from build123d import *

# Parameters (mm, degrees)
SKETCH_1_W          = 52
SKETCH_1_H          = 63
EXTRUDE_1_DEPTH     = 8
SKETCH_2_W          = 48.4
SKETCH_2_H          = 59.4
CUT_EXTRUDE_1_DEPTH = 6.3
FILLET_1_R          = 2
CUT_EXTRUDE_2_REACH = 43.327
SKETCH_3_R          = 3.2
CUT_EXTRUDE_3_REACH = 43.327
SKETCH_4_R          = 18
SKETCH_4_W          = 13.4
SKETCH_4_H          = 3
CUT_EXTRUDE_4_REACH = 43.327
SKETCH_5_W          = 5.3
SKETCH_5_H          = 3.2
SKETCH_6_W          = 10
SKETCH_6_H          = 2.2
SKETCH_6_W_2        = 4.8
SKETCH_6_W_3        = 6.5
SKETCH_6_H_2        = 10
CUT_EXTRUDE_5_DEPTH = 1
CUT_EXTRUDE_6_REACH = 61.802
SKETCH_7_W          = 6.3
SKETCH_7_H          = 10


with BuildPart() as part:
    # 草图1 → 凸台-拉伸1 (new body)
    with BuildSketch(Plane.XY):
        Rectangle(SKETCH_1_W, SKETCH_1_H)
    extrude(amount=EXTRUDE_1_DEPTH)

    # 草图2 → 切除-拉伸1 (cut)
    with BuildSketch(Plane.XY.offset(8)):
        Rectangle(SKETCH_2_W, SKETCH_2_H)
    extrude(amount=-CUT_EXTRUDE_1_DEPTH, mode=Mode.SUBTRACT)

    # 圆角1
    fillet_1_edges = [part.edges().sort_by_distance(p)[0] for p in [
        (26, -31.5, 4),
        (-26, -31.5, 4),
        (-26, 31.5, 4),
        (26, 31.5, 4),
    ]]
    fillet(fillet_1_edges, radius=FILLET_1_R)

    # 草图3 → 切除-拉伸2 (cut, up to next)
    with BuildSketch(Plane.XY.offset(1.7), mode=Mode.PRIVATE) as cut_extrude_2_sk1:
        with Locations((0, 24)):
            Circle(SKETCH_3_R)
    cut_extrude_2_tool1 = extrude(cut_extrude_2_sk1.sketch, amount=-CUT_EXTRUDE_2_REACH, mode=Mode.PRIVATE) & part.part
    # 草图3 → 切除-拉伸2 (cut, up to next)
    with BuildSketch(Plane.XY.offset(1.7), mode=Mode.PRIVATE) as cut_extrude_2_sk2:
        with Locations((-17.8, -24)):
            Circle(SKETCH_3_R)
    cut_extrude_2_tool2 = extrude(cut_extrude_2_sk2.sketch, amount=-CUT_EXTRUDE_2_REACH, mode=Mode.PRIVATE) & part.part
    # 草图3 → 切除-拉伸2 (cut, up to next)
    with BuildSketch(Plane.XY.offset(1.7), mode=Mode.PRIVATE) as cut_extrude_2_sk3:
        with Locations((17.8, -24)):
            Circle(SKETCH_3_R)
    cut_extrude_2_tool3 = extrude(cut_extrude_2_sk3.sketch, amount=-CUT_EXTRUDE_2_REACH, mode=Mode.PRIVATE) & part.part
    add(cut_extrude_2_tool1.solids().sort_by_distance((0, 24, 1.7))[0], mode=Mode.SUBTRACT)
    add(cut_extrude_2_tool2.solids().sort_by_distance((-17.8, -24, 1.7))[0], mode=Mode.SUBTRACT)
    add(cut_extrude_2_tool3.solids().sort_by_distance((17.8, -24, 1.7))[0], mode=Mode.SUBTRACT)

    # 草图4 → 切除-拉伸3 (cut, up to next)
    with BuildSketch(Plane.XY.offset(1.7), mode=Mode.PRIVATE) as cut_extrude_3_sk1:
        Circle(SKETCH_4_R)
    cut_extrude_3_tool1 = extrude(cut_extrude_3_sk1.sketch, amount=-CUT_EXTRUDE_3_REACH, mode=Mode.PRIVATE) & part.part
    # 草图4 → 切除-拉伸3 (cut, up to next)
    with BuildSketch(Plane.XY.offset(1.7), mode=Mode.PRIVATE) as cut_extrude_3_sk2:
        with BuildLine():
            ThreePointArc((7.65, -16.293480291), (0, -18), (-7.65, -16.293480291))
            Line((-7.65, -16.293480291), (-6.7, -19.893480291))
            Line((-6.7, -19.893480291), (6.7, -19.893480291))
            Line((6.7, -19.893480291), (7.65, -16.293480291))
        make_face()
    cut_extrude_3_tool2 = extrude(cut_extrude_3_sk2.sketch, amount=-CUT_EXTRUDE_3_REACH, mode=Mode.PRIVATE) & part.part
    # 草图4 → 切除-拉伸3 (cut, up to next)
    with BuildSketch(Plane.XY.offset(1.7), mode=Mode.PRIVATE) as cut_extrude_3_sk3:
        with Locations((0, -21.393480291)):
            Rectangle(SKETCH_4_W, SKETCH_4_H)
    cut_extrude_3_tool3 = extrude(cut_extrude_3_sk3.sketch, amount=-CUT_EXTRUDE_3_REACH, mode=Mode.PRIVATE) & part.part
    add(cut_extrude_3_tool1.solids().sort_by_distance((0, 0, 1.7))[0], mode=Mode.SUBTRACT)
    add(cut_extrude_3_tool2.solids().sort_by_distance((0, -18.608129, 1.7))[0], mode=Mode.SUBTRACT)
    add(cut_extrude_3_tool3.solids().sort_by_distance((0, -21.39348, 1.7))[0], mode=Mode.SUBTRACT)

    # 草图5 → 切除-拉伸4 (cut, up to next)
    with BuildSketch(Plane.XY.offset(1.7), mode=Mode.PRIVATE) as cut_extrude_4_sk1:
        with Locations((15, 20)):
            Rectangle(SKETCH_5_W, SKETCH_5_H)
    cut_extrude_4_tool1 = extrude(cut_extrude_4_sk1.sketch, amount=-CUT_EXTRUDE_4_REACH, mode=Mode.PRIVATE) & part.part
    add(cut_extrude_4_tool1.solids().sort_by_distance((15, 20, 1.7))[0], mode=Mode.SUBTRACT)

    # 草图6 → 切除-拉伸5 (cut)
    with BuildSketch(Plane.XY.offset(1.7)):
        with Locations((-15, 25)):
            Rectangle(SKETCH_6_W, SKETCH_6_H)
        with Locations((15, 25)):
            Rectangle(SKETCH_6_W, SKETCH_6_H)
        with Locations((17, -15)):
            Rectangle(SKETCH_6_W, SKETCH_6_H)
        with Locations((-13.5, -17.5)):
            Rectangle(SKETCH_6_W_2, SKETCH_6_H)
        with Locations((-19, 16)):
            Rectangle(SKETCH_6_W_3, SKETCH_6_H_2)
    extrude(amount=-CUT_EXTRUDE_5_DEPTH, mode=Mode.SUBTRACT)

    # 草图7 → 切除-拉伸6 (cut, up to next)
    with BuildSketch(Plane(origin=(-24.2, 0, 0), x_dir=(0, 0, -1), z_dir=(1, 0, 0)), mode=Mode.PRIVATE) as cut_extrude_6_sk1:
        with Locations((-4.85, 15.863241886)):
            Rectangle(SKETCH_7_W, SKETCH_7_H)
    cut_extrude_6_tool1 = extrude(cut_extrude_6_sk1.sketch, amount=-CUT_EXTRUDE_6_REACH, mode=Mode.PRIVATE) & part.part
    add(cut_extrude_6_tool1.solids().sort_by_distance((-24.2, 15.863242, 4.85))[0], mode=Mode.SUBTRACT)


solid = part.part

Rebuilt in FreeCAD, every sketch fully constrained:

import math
import FreeCAD as App
import Part
import Sketcher
Q = App.Units.Quantity


def edges_at(feature, points):
    """Names of the edges that pass closest to the given points."""
    edges = feature.Shape.Edges
    near = lambda p: min(range(len(edges)), key=lambda i: edges[i].distToShape(Part.Vertex(*p))[0])
    return sorted({f"Edge{near(p) + 1}" for p in points})

doc = App.newDocument("Part")
body = doc.addObject("PartDesign::Body", "Body")

# Sketch on XY plane
sketch1 = body.newObject("Sketcher::SketchObject", "Sketch")
sketch1.AttachmentSupport = (doc.getObject("XY_Plane"), [""])
sketch1.MapMode = "FlatFace"
sketch1.addGeometry([
    Part.LineSegment(App.Vector(-26, 32, 0), App.Vector(-26, -32, 0)),
    Part.LineSegment(App.Vector(-26, -32, 0), App.Vector(26, -32, 0)),
    Part.LineSegment(App.Vector(26, -32, 0), App.Vector(26, 32, 0)),
    Part.LineSegment(App.Vector(26, 32, 0), App.Vector(-26, 32, 0)),
], False)
sketch1.addConstraint([
    Sketcher.Constraint("Coincident", 0, 2, 1, 1),
    Sketcher.Constraint("Coincident", 1, 2, 2, 1),
    Sketcher.Constraint("Coincident", 2, 2, 3, 1),
    Sketcher.Constraint("Coincident", 3, 2, 0, 1),
    Sketcher.Constraint("Vertical", 0),
    Sketcher.Constraint("Horizontal", 1),
    Sketcher.Constraint("Vertical", 2),
    Sketcher.Constraint("Horizontal", 3),
    Sketcher.Constraint("Symmetric", 0, 2, 2, 2, -1, 1),
    Sketcher.Constraint("DistanceX", 1, 1, 1, 2, Q("52 mm")),
    Sketcher.Constraint("DistanceY", 0, 2, 0, 1, Q("63 mm")),
])
pad1 = body.newObject("PartDesign::Pad", "Pad")
pad1.Profile = sketch1
pad1.Length = 8

# Sketch on XY plane
sketch2 = body.newObject("Sketcher::SketchObject", "Sketch001")
sketch2.AttachmentSupport = (doc.getObject("XY_Plane"), [""])
sketch2.MapMode = "FlatFace"
sketch2.AttachmentOffset = App.Placement(App.Vector(0, 0, 8), App.Rotation())
sketch2.addGeometry([
    Part.LineSegment(App.Vector(-24, 30, 0), App.Vector(-24, -30, 0)),
    Part.LineSegment(App.Vector(-24, -30, 0), App.Vector(24, -30, 0)),
    Part.LineSegment(App.Vector(24, -30, 0), App.Vector(24, 30, 0)),
    Part.LineSegment(App.Vector(24, 30, 0), App.Vector(-24, 30, 0)),
], False)
sketch2.addConstraint([
    Sketcher.Constraint("Coincident", 0, 2, 1, 1),
    Sketcher.Constraint("Coincident", 1, 2, 2, 1),
    Sketcher.Constraint("Coincident", 2, 2, 3, 1),
    Sketcher.Constraint("Coincident", 3, 2, 0, 1),
    Sketcher.Constraint("Vertical", 0),
    Sketcher.Constraint("Horizontal", 1),
    Sketcher.Constraint("Vertical", 2),
    Sketcher.Constraint("Horizontal", 3),
    Sketcher.Constraint("Symmetric", 0, 2, 2, 2, -1, 1),
    Sketcher.Constraint("DistanceX", 1, 1, 1, 2, Q("48.4 mm")),
    Sketcher.Constraint("DistanceY", 0, 2, 0, 1, Q("59.4 mm")),
])
pocket1 = body.newObject("PartDesign::Pocket", "Pocket")
pocket1.Profile = sketch2
pocket1.Length = 6.3
doc.recompute()

fillet = body.newObject("PartDesign::Fillet", "Fillet")
fillet.Base = (pocket1, edges_at(pocket1, [
    (26, -31.5, 4),
    (-26, -31.5, 4),
    (-26, 31.5, 4),
    (26, 31.5, 4),
]))
fillet.Radius = 2

# Sketch on XY plane
sketch3 = body.newObject("Sketcher::SketchObject", "Sketch002")
sketch3.AttachmentSupport = (doc.getObject("XY_Plane"), [""])
sketch3.MapMode = "FlatFace"
sketch3.AttachmentOffset = App.Placement(App.Vector(0, 0, 1.7), App.Rotation())
sketch3.addGeometry(Part.Circle(App.Vector(0, 24, 0), App.Vector(0, 0, 1), 3.2), False)
sketch3.addConstraint([
    Sketcher.Constraint("PointOnObject", 0, 3, -2),
    Sketcher.Constraint("Diameter", 0, Q("6.4 mm")),
    Sketcher.Constraint("DistanceY", -1, 1, 0, 3, Q("24 mm")),
])
pocket2 = body.newObject("PartDesign::Pocket", "Pocket001")
pocket2.Profile = sketch3
pocket2.Type = "UpToFirst"

# Sketch on XY plane
sketch4 = body.newObject("Sketcher::SketchObject", "Sketch003")
sketch4.AttachmentSupport = (doc.getObject("XY_Plane"), [""])
sketch4.MapMode = "FlatFace"
sketch4.AttachmentOffset = App.Placement(App.Vector(0, 0, 1.7), App.Rotation())
sketch4.addGeometry(Part.Circle(App.Vector(-17.8, -24, 0), App.Vector(0, 0, 1), 3.2), False)
sketch4.addConstraint([
    Sketcher.Constraint("Diameter", 0, Q("6.4 mm")),
    Sketcher.Constraint("DistanceY", 0, 3, -1, 1, Q("24 mm")),
    Sketcher.Constraint("DistanceX", 0, 3, -1, 1, Q("17.8 mm")),
])
pocket3 = body.newObject("PartDesign::Pocket", "Pocket002")
pocket3.Profile = sketch4
pocket3.Type = "UpToFirst"

# Sketch on XY plane
sketch5 = body.newObject("Sketcher::SketchObject", "Sketch004")
sketch5.AttachmentSupport = (doc.getObject("XY_Plane"), [""])
sketch5.MapMode = "FlatFace"
sketch5.AttachmentOffset = App.Placement(App.Vector(0, 0, 1.7), App.Rotation())
sketch5.addGeometry(Part.Circle(App.Vector(17.8, -24, 0), App.Vector(0, 0, 1), 3.2), False)
sketch5.addConstraint([
    Sketcher.Constraint("Diameter", 0, Q("6.4 mm")),
    Sketcher.Constraint("DistanceY", 0, 3, -1, 1, Q("24 mm")),
    Sketcher.Constraint("DistanceX", -1, 1, 0, 3, Q("17.8 mm")),
])
pocket4 = body.newObject("PartDesign::Pocket", "Pocket003")
pocket4.Profile = sketch5
pocket4.Type = "UpToFirst"

# Sketch on XY plane
sketch6 = body.newObject("Sketcher::SketchObject", "Sketch005")
sketch6.AttachmentSupport = (doc.getObject("XY_Plane"), [""])
sketch6.MapMode = "FlatFace"
sketch6.AttachmentOffset = App.Placement(App.Vector(0, 0, 1.7), App.Rotation())
sketch6.addGeometry(Part.Circle(App.Vector(0, 0, 0), App.Vector(0, 0, 1), 18), False)
sketch6.addConstraint([
    Sketcher.Constraint("Coincident", 0, 3, -1, 1),
    Sketcher.Constraint("Diameter", 0, Q("36 mm")),
])
pocket5 = body.newObject("PartDesign::Pocket", "Pocket004")
pocket5.Profile = sketch6
pocket5.Type = "UpToFirst"

# Sketch on XY plane
sketch7 = body.newObject("Sketcher::SketchObject", "Sketch006")
sketch7.AttachmentSupport = (doc.getObject("XY_Plane"), [""])
sketch7.MapMode = "FlatFace"
sketch7.AttachmentOffset = App.Placement(App.Vector(0, 0, 1.7), App.Rotation())
sketch7.addGeometry([
    Part.ArcOfCircle(Part.Circle(App.Vector(0, 0, 0), App.Vector(0, 0, 1), 18), math.radians(-115), math.radians(-65)),
    Part.LineSegment(App.Vector(-7.7, -16.3, 0), App.Vector(-6.7, -19.9, 0)),
    Part.LineSegment(App.Vector(-6.7, -19.9, 0), App.Vector(6.7, -19.9, 0)),
    Part.LineSegment(App.Vector(6.7, -19.9, 0), App.Vector(7.7, -16.3, 0)),
], False)
sketch7.addConstraint([
    Sketcher.Constraint("Coincident", 0, 1, 1, 1),
    Sketcher.Constraint("Coincident", 1, 2, 2, 1),
    Sketcher.Constraint("Coincident", 2, 2, 3, 1),
    Sketcher.Constraint("Coincident", 3, 2, 0, 2),
    Sketcher.Constraint("Horizontal", 2),
    Sketcher.Constraint("Coincident", 0, 3, -1, 1),
    Sketcher.Constraint("Horizontal", 0, 1, 3, 2),
    Sketcher.Constraint("Equal", 1, 3),
    Sketcher.Constraint("Radius", 0, Q("18 mm")),
    Sketcher.Constraint("DistanceX", 2, 1, 2, 2, Q("13.4 mm")),
    Sketcher.Constraint("DistanceY", 1, 2, 0, 1, Q("3.6 mm")),
    Sketcher.Constraint("DistanceX", 0, 1, 3, 2, Q("15.3 mm")),
])
pocket6 = body.newObject("PartDesign::Pocket", "Pocket005")
pocket6.Profile = sketch7
pocket6.Type = "UpToFirst"

# Sketch on XY plane
sketch8 = body.newObject("Sketcher::SketchObject", "Sketch007")
sketch8.AttachmentSupport = (doc.getObject("XY_Plane"), [""])
sketch8.MapMode = "FlatFace"
sketch8.AttachmentOffset = App.Placement(App.Vector(0, 0, 1.7), App.Rotation())
sketch8.addGeometry([
    Part.LineSegment(App.Vector(-6.7, -19.9, 0), App.Vector(-6.7, -22.9, 0)),
    Part.LineSegment(App.Vector(-6.7, -22.9, 0), App.Vector(6.7, -22.9, 0)),
    Part.LineSegment(App.Vector(6.7, -22.9, 0), App.Vector(6.7, -19.9, 0)),
    Part.LineSegment(App.Vector(6.7, -19.9, 0), App.Vector(-6.7, -19.9, 0)),
], False)
sketch8.addConstraint([
    Sketcher.Constraint("Coincident", 0, 2, 1, 1),
    Sketcher.Constraint("Coincident", 1, 2, 2, 1),
    Sketcher.Constraint("Coincident", 2, 2, 3, 1),
    Sketcher.Constraint("Coincident", 3, 2, 0, 1),
    Sketcher.Constraint("Vertical", 0),
    Sketcher.Constraint("Horizontal", 1),
    Sketcher.Constraint("Vertical", 2),
    Sketcher.Constraint("Horizontal", 3),
    Sketcher.Constraint("DistanceY", 0, 2, 0, 1, Q("3 mm")),
    Sketcher.Constraint("DistanceX", 1, 1, 1, 2, Q("13.4 mm")),
    Sketcher.Constraint("DistanceX", 0, 2, -1, 1, Q("6.7 mm")),
    Sketcher.Constraint("DistanceY", 0, 2, -1, 1, Q("22.89348 mm")),
])
pocket7 = body.newObject("PartDesign::Pocket", "Pocket006")
pocket7.Profile = sketch8
pocket7.Type = "UpToFirst"

# Sketch on XY plane
sketch9 = body.newObject("Sketcher::SketchObject", "Sketch008")
sketch9.AttachmentSupport = (doc.getObject("XY_Plane"), [""])
sketch9.MapMode = "FlatFace"
sketch9.AttachmentOffset = App.Placement(App.Vector(0, 0, 1.7), App.Rotation())
sketch9.addGeometry([
    Part.LineSegment(App.Vector(12.3, 21.6, 0), App.Vector(12.3, 18.4, 0)),
    Part.LineSegment(App.Vector(12.3, 18.4, 0), App.Vector(17.6, 18.4, 0)),
    Part.LineSegment(App.Vector(17.6, 18.4, 0), App.Vector(17.6, 21.6, 0)),
    Part.LineSegment(App.Vector(17.6, 21.6, 0), App.Vector(12.3, 21.6, 0)),
], False)
sketch9.addConstraint([
    Sketcher.Constraint("Coincident", 0, 2, 1, 1),
    Sketcher.Constraint("Coincident", 1, 2, 2, 1),
    Sketcher.Constraint("Coincident", 2, 2, 3, 1),
    Sketcher.Constraint("Coincident", 3, 2, 0, 1),
    Sketcher.Constraint("Vertical", 0),
    Sketcher.Constraint("Horizontal", 1),
    Sketcher.Constraint("Vertical", 2),
    Sketcher.Constraint("Horizontal", 3),
    Sketcher.Constraint("DistanceX", 1, 1, 1, 2, Q("5.3 mm")),
    Sketcher.Constraint("DistanceY", 0, 2, 0, 1, Q("3.2 mm")),
    Sketcher.Constraint("DistanceY", -1, 1, 0, 2, Q("18.4 mm")),
    Sketcher.Constraint("DistanceX", -1, 1, 0, 2, Q("12.35 mm")),
])
pocket8 = body.newObject("PartDesign::Pocket", "Pocket007")
pocket8.Profile = sketch9
pocket8.Type = "UpToFirst"

# Sketch on XY plane
sketch10 = body.newObject("Sketcher::SketchObject", "Sketch009")
sketch10.AttachmentSupport = (doc.getObject("XY_Plane"), [""])
sketch10.MapMode = "FlatFace"
sketch10.AttachmentOffset = App.Placement(App.Vector(0, 0, 1.7), App.Rotation())
sketch10.addGeometry([
    Part.LineSegment(App.Vector(-20, 26.1, 0), App.Vector(-20, 23.9, 0)),  # 0
    Part.LineSegment(App.Vector(-20, 23.9, 0), App.Vector(-10, 23.9, 0)),  # 1
    Part.LineSegment(App.Vector(-10, 23.9, 0), App.Vector(-10, 26.1, 0)),  # 2
    Part.LineSegment(App.Vector(-10, 26.1, 0), App.Vector(-20, 26.1, 0)),  # 3
    Part.LineSegment(App.Vector(10, 26.1, 0), App.Vector(10, 23.9, 0)),  # 4
    Part.LineSegment(App.Vector(10, 23.9, 0), App.Vector(20, 23.9, 0)),  # 5
    Part.LineSegment(App.Vector(20, 23.9, 0), App.Vector(20, 26.1, 0)),  # 6
    Part.LineSegment(App.Vector(20, 26.1, 0), App.Vector(10, 26.1, 0)),  # 7
    Part.LineSegment(App.Vector(12, -13.9, 0), App.Vector(12, -16.1, 0)),  # 8
    Part.LineSegment(App.Vector(12, -16.1, 0), App.Vector(22, -16.1, 0)),  # 9
    Part.LineSegment(App.Vector(22, -16.1, 0), App.Vector(22, -13.9, 0)),  # 10
    Part.LineSegment(App.Vector(22, -13.9, 0), App.Vector(12, -13.9, 0)),  # 11
    Part.LineSegment(App.Vector(-15.9, -16.4, 0), App.Vector(-15.9, -18.6, 0)),  # 12
    Part.LineSegment(App.Vector(-15.9, -18.6, 0), App.Vector(-11.1, -18.6, 0)),  # 13
    Part.LineSegment(App.Vector(-11.1, -18.6, 0), App.Vector(-11.1, -16.4, 0)),  # 14
    Part.LineSegment(App.Vector(-11.1, -16.4, 0), App.Vector(-15.9, -16.4, 0)),  # 15
    Part.LineSegment(App.Vector(-22.2, 21, 0), App.Vector(-22.2, 11, 0)),  # 16
    Part.LineSegment(App.Vector(-22.2, 11, 0), App.Vector(-15.8, 11, 0)),  # 17
    Part.LineSegment(App.Vector(-15.8, 11, 0), App.Vector(-15.8, 21, 0)),  # 18
    Part.LineSegment(App.Vector(-15.8, 21, 0), App.Vector(-22.2, 21, 0)),  # 19
], False)
sketch10.addConstraint([
    Sketcher.Constraint("Coincident", 0, 2, 1, 1),
    Sketcher.Constraint("Coincident", 1, 2, 2, 1),
    Sketcher.Constraint("Coincident", 2, 2, 3, 1),
    Sketcher.Constraint("Coincident", 3, 2, 0, 1),
    Sketcher.Constraint("Coincident", 4, 2, 5, 1),
    Sketcher.Constraint("Coincident", 5, 2, 6, 1),
    Sketcher.Constraint("Coincident", 6, 2, 7, 1),
    Sketcher.Constraint("Coincident", 7, 2, 4, 1),
    Sketcher.Constraint("Coincident", 8, 2, 9, 1),
    Sketcher.Constraint("Coincident", 9, 2, 10, 1),
    Sketcher.Constraint("Coincident", 10, 2, 11, 1),
    Sketcher.Constraint("Coincident", 11, 2, 8, 1),
    Sketcher.Constraint("Coincident", 12, 2, 13, 1),
    Sketcher.Constraint("Coincident", 13, 2, 14, 1),
    Sketcher.Constraint("Coincident", 14, 2, 15, 1),
    Sketcher.Constraint("Coincident", 15, 2, 12, 1),
    Sketcher.Constraint("Coincident", 16, 2, 17, 1),
    Sketcher.Constraint("Coincident", 17, 2, 18, 1),
    Sketcher.Constraint("Coincident", 18, 2, 19, 1),
    Sketcher.Constraint("Coincident", 19, 2, 16, 1),
    Sketcher.Constraint("Vertical", 0),
    Sketcher.Constraint("Horizontal", 1),
    Sketcher.Constraint("Vertical", 2),
    Sketcher.Constraint("Horizontal", 3),
    Sketcher.Constraint("Vertical", 4),
    Sketcher.Constraint("Horizontal", 5),
    Sketcher.Constraint("Vertical", 6),
    Sketcher.Constraint("Horizontal", 7),
    Sketcher.Constraint("Vertical", 8),
    Sketcher.Constraint("Horizontal", 9),
    Sketcher.Constraint("Vertical", 10),
    Sketcher.Constraint("Horizontal", 11),
    Sketcher.Constraint("Vertical", 12),
    Sketcher.Constraint("Horizontal", 13),
    Sketcher.Constraint("Vertical", 14),
    Sketcher.Constraint("Horizontal", 15),
    Sketcher.Constraint("Vertical", 16),
    Sketcher.Constraint("Horizontal", 17),
    Sketcher.Constraint("Vertical", 18),
    Sketcher.Constraint("Horizontal", 19),
    Sketcher.Constraint("Symmetric", 1, 2, 4, 2, -2),
    Sketcher.Constraint("Symmetric", 3, 2, 6, 2, -2),
    Sketcher.Constraint("Equal", 7, 9),
    Sketcher.Constraint("Equal", 6, 8),
    Sketcher.Constraint("Equal", 10, 12),
    Sketcher.Constraint("Equal", 11, 16),
    Sketcher.Constraint("DistanceX", 1, 1, 1, 2, Q("10 mm")),
    Sketcher.Constraint("DistanceX", 13, 1, 13, 2, Q("4.8 mm")),
    Sketcher.Constraint("DistanceX", 17, 1, 17, 2, Q("6.5 mm")),
    Sketcher.Constraint("DistanceY", 0, 2, 0, 1, Q("2.2 mm")),
    Sketcher.Constraint("DistanceX", 0, 2, -1, 1, Q("20 mm")),
    Sketcher.Constraint("DistanceX", -1, 1, 8, 2, Q("12 mm")),
    Sketcher.Constraint("DistanceY", -1, 1, 16, 2, Q("11 mm")),
    Sketcher.Constraint("DistanceY", 8, 2, 4, 2, Q("40 mm")),
    Sketcher.Constraint("DistanceY", -1, 1, 0, 2, Q("23.9 mm")),
    Sketcher.Constraint("DistanceX", 12, 2, -1, 1, Q("15.9 mm")),
    Sketcher.Constraint("DistanceY", 12, 2, -1, 1, Q("18.6 mm")),
    Sketcher.Constraint("DistanceX", 16, 2, -1, 1, Q("22.25 mm")),
])
pocket9 = body.newObject("PartDesign::Pocket", "Pocket008")
pocket9.Profile = sketch10
pocket9.Length = 1

# Sketch on YZ plane
sketch11 = body.newObject("Sketcher::SketchObject", "Sketch010")
sketch11.AttachmentSupport = (doc.getObject("YZ_Plane"), [""])
sketch11.MapMode = "FlatFace"
sketch11.AttachmentOffset = App.Placement(App.Vector(0, 0, -24.2), App.Rotation())
sketch11.addGeometry([
    Part.LineSegment(App.Vector(21, 8, 0), App.Vector(11, 8, 0)),
    Part.LineSegment(App.Vector(11, 8, 0), App.Vector(11, 2, 0)),
    Part.LineSegment(App.Vector(11, 2, 0), App.Vector(21, 2, 0)),
    Part.LineSegment(App.Vector(21, 2, 0), App.Vector(21, 8, 0)),
], False)
sketch11.addConstraint([
    Sketcher.Constraint("Coincident", 0, 2, 1, 1),
    Sketcher.Constraint("Coincident", 1, 2, 2, 1),
    Sketcher.Constraint("Coincident", 2, 2, 3, 1),
    Sketcher.Constraint("Coincident", 3, 2, 0, 1),
    Sketcher.Constraint("Horizontal", 0),
    Sketcher.Constraint("Vertical", 1),
    Sketcher.Constraint("Horizontal", 2),
    Sketcher.Constraint("Vertical", 3),
    Sketcher.Constraint("DistanceX", 0, 2, 0, 1, Q("10 mm")),
    Sketcher.Constraint("DistanceY", 1, 2, 1, 1, Q("6.3 mm")),
    Sketcher.Constraint("DistanceY", -1, 1, 0, 2, Q("8 mm")),
    Sketcher.Constraint("DistanceX", -1, 1, 0, 2, Q("10.863242 mm")),
])
pocket10 = body.newObject("PartDesign::Pocket", "Pocket009")
pocket10.Profile = sketch11
pocket10.Type = "UpToFirst"

doc.recompute()
